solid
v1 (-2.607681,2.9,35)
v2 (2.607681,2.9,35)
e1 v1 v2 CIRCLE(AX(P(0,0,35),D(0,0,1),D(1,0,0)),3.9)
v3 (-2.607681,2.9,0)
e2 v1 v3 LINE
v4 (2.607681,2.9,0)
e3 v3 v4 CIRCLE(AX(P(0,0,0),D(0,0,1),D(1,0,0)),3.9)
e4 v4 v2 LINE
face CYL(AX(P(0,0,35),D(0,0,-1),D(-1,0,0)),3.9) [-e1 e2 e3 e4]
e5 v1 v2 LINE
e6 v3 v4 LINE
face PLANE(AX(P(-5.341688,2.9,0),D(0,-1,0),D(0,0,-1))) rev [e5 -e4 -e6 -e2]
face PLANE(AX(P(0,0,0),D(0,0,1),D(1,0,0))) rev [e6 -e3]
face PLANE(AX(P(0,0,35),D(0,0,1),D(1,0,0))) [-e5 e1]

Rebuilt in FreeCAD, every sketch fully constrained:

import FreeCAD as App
import Part
import Sketcher

V = App.Vector
Q = App.Units.Quantity

doc = App.newDocument("Part")
body = doc.addObject("PartDesign::Body", "Body")

sketch1 = body.newObject("Sketcher::SketchObject", "Sketch")
sketch1.AttachmentSupport = (doc.getObject("XY_Plane"), [""])
sketch1.MapMode = "FlatFace"
sketch1.addGeometry(Part.Circle(V(0, 0, 0), V(0, 0, 1), 3.9), False)
sketch1.addConstraint(Sketcher.Constraint("Coincident", 0, 3, -1, 1))
sketch1.addConstraint(Sketcher.Constraint("Diameter", 0, Q("7.8 mm")))
pad1 = body.newObject("PartDesign::Pad", "Pad")
pad1.Profile = sketch1
pad1.Length = 35

sketch2 = body.newObject("Sketcher::SketchObject", "Sketch001")
sketch2.AttachmentSupport = (doc.getObject("XY_Plane"), [""])
sketch2.MapMode = "FlatFace"
sketch2.AttachmentOffset = App.Placement(V(0, 0, 35), App.Rotation())
sketch2.addGeometry(Part.LineSegment(V(-5.3, 6.8, 0), V(-5.3, 2.9, 0)), False)
sketch2.addGeometry(Part.LineSegment(V(-5.3, 2.9, 0), V(4.3, 2.9, 0)), False)
sketch2.addGeometry(Part.LineSegment(V(4.3, 2.9, 0), V(4.3, 6.8, 0)), False)
sketch2.addGeometry(Part.LineSegment(V(4.3, 6.8, 0), V(-5.3, 6.8, 0)), False)
sketch2.addConstraint(Sketcher.Constraint("Coincident", 0, 2, 1, 1))
sketch2.addConstraint(Sketcher.Constraint("Coincident", 1, 2, 2, 1))
sketch2.addConstraint(Sketcher.Constraint("Coincident", 2, 2, 3, 1))
sketch2.addConstraint(Sketcher.Constraint("Coincident", 3, 2, 0, 1))
sketch2.addConstraint(Sketcher.Constraint("Vertical", 0))
sketch2.addConstraint(Sketcher.Constraint("Horizontal", 1))
sketch2.addConstraint(Sketcher.Constraint("Vertical", 2))
sketch2.addConstraint(Sketcher.Constraint("Horizontal", 3))
sketch2.addConstraint(Sketcher.Constraint("DistanceY", -1, 1, 0, 2, Q("2.9 mm")))
sketch2.addConstraint(Sketcher.Constraint("DistanceX", 1, 1, 1, 2, Q("9.684871 mm")))
sketch2.addConstraint(Sketcher.Constraint("DistanceY", 0, 2, 0, 1, Q("3.943126 mm")))
sketch2.addConstraint(Sketcher.Constraint("DistanceX", 0, 2, -1, 1, Q("5.341688 mm")))
pocket1 = body.newObject("PartDesign::Pocket", "Pocket")
pocket1.Profile = sketch2
pocket1.Type = "ThroughAll"

doc.recompute()
